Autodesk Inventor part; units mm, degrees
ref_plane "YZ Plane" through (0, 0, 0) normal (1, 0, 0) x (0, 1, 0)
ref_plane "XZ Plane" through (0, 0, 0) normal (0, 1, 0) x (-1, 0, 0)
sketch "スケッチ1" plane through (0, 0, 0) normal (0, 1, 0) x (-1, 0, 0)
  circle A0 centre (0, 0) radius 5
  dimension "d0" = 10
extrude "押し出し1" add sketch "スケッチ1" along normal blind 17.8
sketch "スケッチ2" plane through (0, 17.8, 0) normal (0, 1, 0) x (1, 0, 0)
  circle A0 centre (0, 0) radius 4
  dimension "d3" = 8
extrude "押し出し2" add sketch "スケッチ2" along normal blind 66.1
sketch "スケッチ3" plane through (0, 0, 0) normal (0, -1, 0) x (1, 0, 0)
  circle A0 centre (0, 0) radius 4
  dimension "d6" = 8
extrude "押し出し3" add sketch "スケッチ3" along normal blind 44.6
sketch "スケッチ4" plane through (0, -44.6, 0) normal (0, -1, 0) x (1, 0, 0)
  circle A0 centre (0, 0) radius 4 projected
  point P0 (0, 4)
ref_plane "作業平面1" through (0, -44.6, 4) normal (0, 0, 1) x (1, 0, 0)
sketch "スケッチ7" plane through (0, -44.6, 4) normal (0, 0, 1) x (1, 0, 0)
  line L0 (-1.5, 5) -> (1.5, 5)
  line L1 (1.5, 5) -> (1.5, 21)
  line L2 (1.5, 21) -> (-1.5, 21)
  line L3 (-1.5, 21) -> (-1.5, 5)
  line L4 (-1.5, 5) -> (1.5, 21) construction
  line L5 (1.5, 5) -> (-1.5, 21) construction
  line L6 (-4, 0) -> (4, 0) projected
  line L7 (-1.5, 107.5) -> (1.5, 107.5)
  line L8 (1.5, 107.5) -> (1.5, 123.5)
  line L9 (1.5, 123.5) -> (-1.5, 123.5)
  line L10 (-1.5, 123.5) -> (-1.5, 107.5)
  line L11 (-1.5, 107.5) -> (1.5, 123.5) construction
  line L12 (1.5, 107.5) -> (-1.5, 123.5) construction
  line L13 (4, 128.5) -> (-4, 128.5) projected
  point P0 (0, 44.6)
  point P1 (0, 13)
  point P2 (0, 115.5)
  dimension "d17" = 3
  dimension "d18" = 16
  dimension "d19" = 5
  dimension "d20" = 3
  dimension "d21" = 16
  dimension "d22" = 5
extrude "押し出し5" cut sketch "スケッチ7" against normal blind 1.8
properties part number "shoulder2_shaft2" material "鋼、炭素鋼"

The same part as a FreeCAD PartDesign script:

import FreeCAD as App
import Part
import Sketcher
Q = App.Units.Quantity

doc = App.newDocument("Part")
params = doc.addObject("Spreadsheet::Sheet", "Params")
for row, (alias, value) in enumerate([
    ("sketch1_diameter", "10 mm"),
    ("pad1_length", "17.8 mm"),
    ("sketch2_diameter", "8 mm"),
    ("pad2_length", "66.1 mm"),
    ("sketch3_diameter", "8 mm"),
    ("pad3_length", "44.6 mm"),
    ("sketch4_width", "3 mm"),
    ("sketch4_height", "16 mm"),
    ("pocket1_length", "1.8 mm"),
], start=1):
    params.set(f"A{row}", alias)
    params.set(f"B{row}", "=" + value)
    params.setAlias(f"B{row}", alias)

body = doc.addObject("PartDesign::Body", "Body")

sketch1 = body.newObject("Sketcher::SketchObject", "Sketch")
sketch1.AttachmentSupport = (doc.getObject("XZ_Plane"), [""])
sketch1.MapMode = "FlatFace"
sketch1.addGeometry(Part.Circle(App.Vector(0, 0, 0), App.Vector(0, 0, 1), 5), False)
sketch1.addConstraint(Sketcher.Constraint("Coincident", 0, 3, -1, 1))
sketch1.addConstraint(Sketcher.Constraint("Diameter", 0, Q("10 mm")))
sketch1.setExpression("Constraints[1]", "Params.sketch1_diameter")
pad1 = body.newObject("PartDesign::Pad", "Pad")
pad1.Profile = sketch1
pad1.setExpression("Length", "Params.pad1_length")
pad1.Reversed = True

sketch2 = body.newObject("Sketcher::SketchObject", "Sketch001")
sketch2.AttachmentSupport = (doc.getObject("XZ_Plane"), [""])
sketch2.MapMode = "FlatFace"
sketch2.AttachmentOffset = App.Placement(App.Vector(0, 0, -17.8), App.Rotation())
sketch2.addGeometry(Part.Circle(App.Vector(0, 0, 0), App.Vector(0, 0, 1), 4), False)
sketch2.addConstraint(Sketcher.Constraint("Coincident", 0, 3, -1, 1))
sketch2.addConstraint(Sketcher.Constraint("Diameter", 0, Q("8 mm")))
sketch2.setExpression("Constraints[1]", "Params.sketch2_diameter")
pad2 = body.newObject("PartDesign::Pad", "Pad001")
pad2.Profile = sketch2
pad2.setExpression("Length", "Params.pad2_length")
pad2.Reversed = True

sketch3 = body.newObject("Sketcher::SketchObject", "Sketch002")
sketch3.AttachmentSupport = (doc.getObject("XZ_Plane"), [""])
sketch3.MapMode = "FlatFace"
sketch3.addGeometry(Part.Circle(App.Vector(0, 0, 0), App.Vector(0, 0, 1), 4), False)
sketch3.addConstraint(Sketcher.Constraint("Coincident", 0, 3, -1, 1))
sketch3.addConstraint(Sketcher.Constraint("Diameter", 0, Q("8 mm")))
sketch3.setExpression("Constraints[1]", "Params.sketch3_diameter")
pad3 = body.newObject("PartDesign::Pad", "Pad002")
pad3.Profile = sketch3
pad3.setExpression("Length", "Params.pad3_length")

sketch4 = body.newObject("Sketcher::SketchObject", "Sketch003")
sketch4.AttachmentSupport = (doc.getObject("XY_Plane"), [""])
sketch4.MapMode = "FlatFace"
sketch4.AttachmentOffset = App.Placement(App.Vector(0, 0, 4), App.Rotation())
sketch4.addGeometry(Part.LineSegment(App.Vector(-1.5, -23.6, 0), App.Vector(-1.5, -39.6, 0)), False)
sketch4.addGeometry(Part.LineSegment(App.Vector(-1.5, -39.6, 0), App.Vector(1.5, -39.6, 0)), False)
sketch4.addGeometry(Part.LineSegment(App.Vector(1.5, -39.6, 0), App.Vector(1.5, -23.6, 0)), False)
sketch4.addGeometry(Part.LineSegment(App.Vector(1.5, -23.6, 0), App.Vector(-1.5, -23.6, 0)), False)
sketch4.addGeometry(Part.LineSegment(App.Vector(-1.5, 78.9, 0), App.Vector(-1.5, 62.9, 0)), False)
sketch4.addGeometry(Part.LineSegment(App.Vector(-1.5, 62.9, 0), App.Vector(1.5, 62.9, 0)), False)
sketch4.addGeometry(Part.LineSegment(App.Vector(1.5, 62.9, 0), App.Vector(1.5, 78.9, 0)), False)
sketch4.addGeometry(Part.LineSegment(App.Vector(1.5, 78.9, 0), App.Vector(-1.5, 78.9, 0)), False)
sketch4.addConstraint(Sketcher.Constraint("Coincident", 0, 2, 1, 1))
sketch4.addConstraint(Sketcher.Constraint("Coincident", 1, 2, 2, 1))
sketch4.addConstraint(Sketcher.Constraint("Coincident", 2, 2, 3, 1))
sketch4.addConstraint(Sketcher.Constraint("Coincident", 3, 2, 0, 1))
sketch4.addConstraint(Sketcher.Constraint("Coincident", 4, 2, 5, 1))
sketch4.addConstraint(Sketcher.Constraint("Coincident", 5, 2, 6, 1))
sketch4.addConstraint(Sketcher.Constraint("Coincident", 6, 2, 7, 1))
sketch4.addConstraint(Sketcher.Constraint("Coincident", 7, 2, 4, 1))
sketch4.addConstraint(Sketcher.Constraint("Vertical", 0))
sketch4.addConstraint(Sketcher.Constraint("Horizontal", 1))
sketch4.addConstraint(Sketcher.Constraint("Vertical", 2))
sketch4.addConstraint(Sketcher.Constraint("Horizontal", 3))
sketch4.addConstraint(Sketcher.Constraint("Vertical", 4))
sketch4.addConstraint(Sketcher.Constraint("Horizontal", 5))
sketch4.addConstraint(Sketcher.Constraint("Vertical", 6))
sketch4.addConstraint(Sketcher.Constraint("Horizontal", 7))
sketch4.addConstraint(Sketcher.Constraint("Vertical", 3, 2, 4, 2))
sketch4.addConstraint(Sketcher.Constraint("Vertical", 2, 2, 5, 2))
sketch4.addConstraint(Sketcher.Constraint("Equal", 2, 4))
sketch4.addConstraint(Sketcher.Constraint("DistanceX", 1, 1, 1, 2, Q("3 mm")))
sketch4.addConstraint(Sketcher.Constraint("DistanceY", 0, 2, 0, 1, Q("16 mm")))
sketch4.addConstraint(Sketcher.Constraint("DistanceX", 0, 2, -1, 1, Q("1.5 mm")))
sketch4.addConstraint(Sketcher.Constraint("DistanceY", 0, 2, -1, 1, Q("39.6 mm")))
sketch4.addConstraint(Sketcher.Constraint("DistanceY", -1, 1, 4, 2, Q("62.9 mm")))
sketch4.setExpression("Constraints[19]", "Params.sketch4_width")
sketch4.setExpression("Constraints[20]", "Params.sketch4_height")
pocket1 = body.newObject("PartDesign::Pocket", "Pocket")
pocket1.Profile = sketch4
pocket1.setExpression("Length", "Params.pocket1_length")

doc.recompute()
